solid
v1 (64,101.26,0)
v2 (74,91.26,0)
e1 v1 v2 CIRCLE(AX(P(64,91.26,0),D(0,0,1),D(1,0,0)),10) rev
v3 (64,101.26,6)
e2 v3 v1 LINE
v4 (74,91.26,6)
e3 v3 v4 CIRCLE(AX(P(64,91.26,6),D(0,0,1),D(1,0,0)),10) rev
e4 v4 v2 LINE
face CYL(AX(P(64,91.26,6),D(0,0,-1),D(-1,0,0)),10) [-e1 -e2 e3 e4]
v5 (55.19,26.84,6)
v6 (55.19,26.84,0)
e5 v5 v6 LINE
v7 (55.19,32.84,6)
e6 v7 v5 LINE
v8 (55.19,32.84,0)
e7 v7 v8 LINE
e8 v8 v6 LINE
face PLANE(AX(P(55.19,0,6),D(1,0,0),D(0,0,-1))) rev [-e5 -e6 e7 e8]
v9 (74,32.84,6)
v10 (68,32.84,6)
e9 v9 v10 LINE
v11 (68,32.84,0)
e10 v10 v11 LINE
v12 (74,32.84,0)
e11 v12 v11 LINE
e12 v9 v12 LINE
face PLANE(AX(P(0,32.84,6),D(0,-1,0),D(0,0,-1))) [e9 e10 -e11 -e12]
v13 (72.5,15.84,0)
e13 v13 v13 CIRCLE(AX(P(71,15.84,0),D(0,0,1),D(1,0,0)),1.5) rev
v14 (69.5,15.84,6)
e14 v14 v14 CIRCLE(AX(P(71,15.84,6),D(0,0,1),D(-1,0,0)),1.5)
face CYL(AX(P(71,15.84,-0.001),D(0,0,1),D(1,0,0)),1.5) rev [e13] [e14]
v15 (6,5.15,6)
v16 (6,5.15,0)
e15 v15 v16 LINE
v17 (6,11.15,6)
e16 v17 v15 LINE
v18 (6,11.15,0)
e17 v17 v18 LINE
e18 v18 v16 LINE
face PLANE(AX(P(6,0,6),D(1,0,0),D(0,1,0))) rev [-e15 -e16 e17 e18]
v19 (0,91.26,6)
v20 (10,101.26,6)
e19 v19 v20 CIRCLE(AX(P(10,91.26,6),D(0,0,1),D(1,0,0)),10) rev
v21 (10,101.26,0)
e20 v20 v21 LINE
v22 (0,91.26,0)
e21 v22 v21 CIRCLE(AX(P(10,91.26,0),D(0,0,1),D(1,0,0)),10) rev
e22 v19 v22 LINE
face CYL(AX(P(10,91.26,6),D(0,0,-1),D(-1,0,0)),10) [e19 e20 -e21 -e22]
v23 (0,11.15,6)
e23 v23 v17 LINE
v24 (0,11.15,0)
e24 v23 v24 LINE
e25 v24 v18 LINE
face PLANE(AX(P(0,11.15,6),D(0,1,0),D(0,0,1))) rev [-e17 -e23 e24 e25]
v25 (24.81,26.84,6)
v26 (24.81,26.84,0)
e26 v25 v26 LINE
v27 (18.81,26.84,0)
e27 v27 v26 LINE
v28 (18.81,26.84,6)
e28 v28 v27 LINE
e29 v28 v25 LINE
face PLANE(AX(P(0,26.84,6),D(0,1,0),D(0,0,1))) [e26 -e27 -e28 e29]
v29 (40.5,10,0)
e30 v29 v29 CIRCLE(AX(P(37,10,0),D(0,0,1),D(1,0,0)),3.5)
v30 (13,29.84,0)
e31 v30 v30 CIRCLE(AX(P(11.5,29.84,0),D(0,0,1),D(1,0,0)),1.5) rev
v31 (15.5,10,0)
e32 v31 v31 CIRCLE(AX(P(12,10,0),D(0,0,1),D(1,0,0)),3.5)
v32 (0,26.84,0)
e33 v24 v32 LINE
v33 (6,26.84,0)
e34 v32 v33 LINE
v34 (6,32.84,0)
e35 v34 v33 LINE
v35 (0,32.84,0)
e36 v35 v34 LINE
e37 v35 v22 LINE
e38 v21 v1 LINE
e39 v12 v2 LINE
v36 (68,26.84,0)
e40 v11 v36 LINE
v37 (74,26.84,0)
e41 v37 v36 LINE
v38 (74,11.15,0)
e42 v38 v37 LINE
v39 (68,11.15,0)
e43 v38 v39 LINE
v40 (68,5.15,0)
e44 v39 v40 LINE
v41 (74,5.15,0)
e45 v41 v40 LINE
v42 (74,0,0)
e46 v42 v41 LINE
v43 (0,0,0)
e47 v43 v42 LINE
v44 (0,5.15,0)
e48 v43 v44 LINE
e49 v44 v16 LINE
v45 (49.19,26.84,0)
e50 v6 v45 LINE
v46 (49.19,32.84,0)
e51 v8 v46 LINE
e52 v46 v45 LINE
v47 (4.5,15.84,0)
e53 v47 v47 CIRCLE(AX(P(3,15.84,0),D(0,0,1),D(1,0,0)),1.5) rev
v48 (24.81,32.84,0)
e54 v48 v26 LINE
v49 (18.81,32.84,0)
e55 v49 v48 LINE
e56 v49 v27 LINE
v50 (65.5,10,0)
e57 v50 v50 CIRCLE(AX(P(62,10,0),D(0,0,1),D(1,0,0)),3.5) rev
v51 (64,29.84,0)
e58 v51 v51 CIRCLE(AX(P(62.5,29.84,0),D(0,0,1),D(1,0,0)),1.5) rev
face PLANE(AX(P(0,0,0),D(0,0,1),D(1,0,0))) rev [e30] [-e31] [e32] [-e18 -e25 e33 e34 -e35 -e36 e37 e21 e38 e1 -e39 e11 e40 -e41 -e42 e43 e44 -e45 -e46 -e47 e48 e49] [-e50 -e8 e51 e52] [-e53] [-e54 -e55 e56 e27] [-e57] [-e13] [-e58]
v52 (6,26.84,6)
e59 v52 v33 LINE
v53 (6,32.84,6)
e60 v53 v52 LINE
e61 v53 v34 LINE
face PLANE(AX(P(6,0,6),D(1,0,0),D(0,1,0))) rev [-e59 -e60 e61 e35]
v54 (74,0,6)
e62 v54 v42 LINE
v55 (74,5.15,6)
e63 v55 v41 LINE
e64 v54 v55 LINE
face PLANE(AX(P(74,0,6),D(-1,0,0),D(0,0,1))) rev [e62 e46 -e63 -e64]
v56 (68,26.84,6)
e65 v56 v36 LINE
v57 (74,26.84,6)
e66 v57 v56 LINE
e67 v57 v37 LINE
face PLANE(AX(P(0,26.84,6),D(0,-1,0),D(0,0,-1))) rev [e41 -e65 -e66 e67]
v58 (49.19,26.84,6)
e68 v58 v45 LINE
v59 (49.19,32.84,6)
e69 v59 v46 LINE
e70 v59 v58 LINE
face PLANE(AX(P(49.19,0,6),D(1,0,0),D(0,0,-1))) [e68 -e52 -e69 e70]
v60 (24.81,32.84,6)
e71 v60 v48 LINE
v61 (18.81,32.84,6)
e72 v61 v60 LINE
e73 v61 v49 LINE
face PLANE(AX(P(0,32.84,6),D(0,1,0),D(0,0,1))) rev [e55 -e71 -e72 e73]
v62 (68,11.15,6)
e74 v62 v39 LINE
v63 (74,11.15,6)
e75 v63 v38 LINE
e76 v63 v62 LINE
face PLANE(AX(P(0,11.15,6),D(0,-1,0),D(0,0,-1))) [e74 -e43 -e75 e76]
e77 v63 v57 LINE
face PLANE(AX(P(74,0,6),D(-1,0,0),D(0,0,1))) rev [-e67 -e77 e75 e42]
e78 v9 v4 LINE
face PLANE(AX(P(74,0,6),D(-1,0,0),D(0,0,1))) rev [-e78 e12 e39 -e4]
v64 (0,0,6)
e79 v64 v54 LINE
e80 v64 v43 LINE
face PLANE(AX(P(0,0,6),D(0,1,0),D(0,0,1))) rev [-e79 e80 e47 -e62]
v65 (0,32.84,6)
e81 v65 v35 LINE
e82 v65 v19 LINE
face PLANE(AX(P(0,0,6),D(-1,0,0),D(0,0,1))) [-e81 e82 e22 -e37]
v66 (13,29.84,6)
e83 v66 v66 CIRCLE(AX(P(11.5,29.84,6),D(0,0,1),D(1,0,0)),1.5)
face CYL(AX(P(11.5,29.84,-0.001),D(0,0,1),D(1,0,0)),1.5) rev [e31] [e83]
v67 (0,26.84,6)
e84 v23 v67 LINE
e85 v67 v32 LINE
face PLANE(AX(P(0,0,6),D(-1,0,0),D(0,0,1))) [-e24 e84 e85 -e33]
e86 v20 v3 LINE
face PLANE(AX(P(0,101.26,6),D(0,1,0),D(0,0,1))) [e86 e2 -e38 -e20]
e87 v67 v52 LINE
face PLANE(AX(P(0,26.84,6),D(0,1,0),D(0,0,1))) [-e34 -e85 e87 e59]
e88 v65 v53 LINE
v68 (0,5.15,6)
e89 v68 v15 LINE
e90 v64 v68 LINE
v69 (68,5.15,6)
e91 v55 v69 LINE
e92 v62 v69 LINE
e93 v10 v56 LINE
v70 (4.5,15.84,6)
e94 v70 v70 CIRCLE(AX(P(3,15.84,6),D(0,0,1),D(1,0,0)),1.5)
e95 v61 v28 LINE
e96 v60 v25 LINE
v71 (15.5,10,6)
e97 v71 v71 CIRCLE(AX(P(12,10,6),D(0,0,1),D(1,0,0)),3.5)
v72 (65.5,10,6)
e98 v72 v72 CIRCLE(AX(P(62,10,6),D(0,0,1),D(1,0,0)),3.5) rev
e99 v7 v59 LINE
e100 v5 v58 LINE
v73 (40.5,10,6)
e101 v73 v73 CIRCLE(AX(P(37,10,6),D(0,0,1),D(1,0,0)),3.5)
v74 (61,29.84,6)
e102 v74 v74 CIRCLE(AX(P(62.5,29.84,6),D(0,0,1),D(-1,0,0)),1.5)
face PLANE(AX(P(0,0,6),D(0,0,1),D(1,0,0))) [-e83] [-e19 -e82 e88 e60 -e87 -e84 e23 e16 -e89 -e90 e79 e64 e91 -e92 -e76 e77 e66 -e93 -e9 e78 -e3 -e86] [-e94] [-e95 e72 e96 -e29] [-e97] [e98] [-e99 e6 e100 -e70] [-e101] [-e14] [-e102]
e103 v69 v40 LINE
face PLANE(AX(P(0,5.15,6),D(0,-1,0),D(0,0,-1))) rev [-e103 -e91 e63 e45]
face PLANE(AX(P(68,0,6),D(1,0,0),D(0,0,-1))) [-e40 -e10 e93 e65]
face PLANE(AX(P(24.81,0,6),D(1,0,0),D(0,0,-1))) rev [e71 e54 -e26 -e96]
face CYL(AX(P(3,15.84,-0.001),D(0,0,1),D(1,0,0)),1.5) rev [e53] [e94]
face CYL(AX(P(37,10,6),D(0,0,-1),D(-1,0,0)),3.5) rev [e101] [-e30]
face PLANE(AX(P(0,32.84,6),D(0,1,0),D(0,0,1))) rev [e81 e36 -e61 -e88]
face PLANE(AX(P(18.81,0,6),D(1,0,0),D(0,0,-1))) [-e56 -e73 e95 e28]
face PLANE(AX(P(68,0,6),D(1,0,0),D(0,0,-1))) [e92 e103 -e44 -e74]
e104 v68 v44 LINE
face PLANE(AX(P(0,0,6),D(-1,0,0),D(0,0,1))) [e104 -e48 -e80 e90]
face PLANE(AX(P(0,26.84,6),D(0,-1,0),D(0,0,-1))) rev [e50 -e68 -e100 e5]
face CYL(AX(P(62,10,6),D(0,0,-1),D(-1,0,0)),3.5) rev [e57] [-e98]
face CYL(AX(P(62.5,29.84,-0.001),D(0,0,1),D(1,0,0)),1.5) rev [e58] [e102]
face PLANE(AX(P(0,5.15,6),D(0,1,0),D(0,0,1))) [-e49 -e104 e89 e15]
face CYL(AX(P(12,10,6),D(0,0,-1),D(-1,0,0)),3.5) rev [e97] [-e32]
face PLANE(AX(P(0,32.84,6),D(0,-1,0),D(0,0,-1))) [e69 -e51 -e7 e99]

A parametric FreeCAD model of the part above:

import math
import FreeCAD as App
import Part
import Sketcher
from FreeCAD import Vector

doc = App.newDocument("Part")
params = doc.addObject("Spreadsheet::Sheet", "Params")
for row, (alias, value) in enumerate([
    ("sketch1_diameter", "7 mm"),
    ("sketch1_radius", "10 mm"),
    ("sketch1_width", "74 mm"),
    ("sketch1_width2", "6 mm"),
    ("sketch1_height", "5.15 mm"),
    ("pad1_length", "6 mm"),
    ("sketch2_diameter", "3 mm"),
    ("sketch3_diameter", "3 mm"),
    ("sketch4_diameter", "3 mm"),
    ("sketch5_diameter", "3 mm"),
], start=1):
    params.set(f"A{row}", alias)
    params.set(f"B{row}", "=" + value)
    params.setAlias(f"B{row}", alias)

body = doc.addObject("PartDesign::Body", "Body")

# Sketch on XY plane
sketch1 = doc.addObject("Sketcher::SketchObject", "Sketch")
body.addObject(sketch1)
sketch1.AttachmentSupport = (doc.XY_Plane, [""])
sketch1.MapMode = "FlatFace"
sketch1.addGeometry([
    Part.LineSegment(Vector(0, 5.2, 0), Vector(0, 0, 0)),  # 0
    Part.LineSegment(Vector(0, 0, 0), Vector(74, 0, 0)),  # 1
    Part.LineSegment(Vector(74, 0, 0), Vector(74, 5.2, 0)),  # 2
    Part.LineSegment(Vector(74, 5.2, 0), Vector(68, 5.2, 0)),  # 3
    Part.LineSegment(Vector(68, 5.2, 0), Vector(68, 11.2, 0)),  # 4
    Part.LineSegment(Vector(68, 11.2, 0), Vector(74, 11.2, 0)),  # 5
    Part.LineSegment(Vector(74, 11.2, 0), Vector(74, 26.8, 0)),  # 6
    Part.LineSegment(Vector(74, 26.8, 0), Vector(68, 26.8, 0)),  # 7
    Part.LineSegment(Vector(68, 26.8, 0), Vector(68, 32.8, 0)),  # 8
    Part.LineSegment(Vector(68, 32.8, 0), Vector(74, 32.8, 0)),  # 9
    Part.LineSegment(Vector(74, 32.8, 0), Vector(74, 91.3, 0)),  # 10
    Part.ArcOfCircle(Part.Circle(Vector(64, 91.3, 0), Vector(0, 0, 1), 10), math.radians(0), math.radians(90)),  # 11
    Part.LineSegment(Vector(64, 101.3, 0), Vector(10, 101.3, 0)),  # 12
    Part.ArcOfCircle(Part.Circle(Vector(10, 91.3, 0), Vector(0, 0, 1), 10), math.radians(90), math.radians(180)),  # 13
    Part.LineSegment(Vector(0, 91.3, 0), Vector(0, 32.8, 0)),  # 14
    Part.LineSegment(Vector(0, 32.8, 0), Vector(6, 32.8, 0)),  # 15
    Part.LineSegment(Vector(6, 32.8, 0), Vector(6, 26.8, 0)),  # 16
    Part.LineSegment(Vector(6, 26.8, 0), Vector(0, 26.8, 0)),  # 17
    Part.LineSegment(Vector(0, 26.8, 0), Vector(0, 11.2, 0)),  # 18
    Part.LineSegment(Vector(0, 11.2, 0), Vector(6, 11.2, 0)),  # 19
    Part.LineSegment(Vector(6, 11.2, 0), Vector(6, 5.2, 0)),  # 20
    Part.LineSegment(Vector(6, 5.2, 0), Vector(0, 5.2, 0)),  # 21
    Part.Circle(Vector(12, 10, 0), Vector(0, 0, 1), 3.5),  # 22
    Part.Circle(Vector(37, 10, 0), Vector(0, 0, 1), 3.5),  # 23
    Part.Circle(Vector(62, 10, 0), Vector(0, 0, 1), 3.5),  # 24
    Part.LineSegment(Vector(24.8, 26.8, 0), Vector(18.8, 26.8, 0)),  # 25
    Part.LineSegment(Vector(18.8, 26.8, 0), Vector(18.8, 32.8, 0)),  # 26
    Part.LineSegment(Vector(18.8, 32.8, 0), Vector(24.8, 32.8, 0)),  # 27
    Part.LineSegment(Vector(24.8, 32.8, 0), Vector(24.8, 26.8, 0)),  # 28
    Part.LineSegment(Vector(55.2, 26.8, 0), Vector(49.2, 26.8, 0)),  # 29
    Part.LineSegment(Vector(49.2, 26.8, 0), Vector(49.2, 32.8, 0)),  # 30
    Part.LineSegment(Vector(49.2, 32.8, 0), Vector(55.2, 32.8, 0)),  # 31
    Part.LineSegment(Vector(55.2, 32.8, 0), Vector(55.2, 26.8, 0)),  # 32
], False)
sketch1.addConstraint([
    Sketcher.Constraint("Coincident", 0, 2, 1, 1),
    Sketcher.Constraint("Coincident", 1, 2, 2, 1),
    Sketcher.Constraint("Coincident", 2, 2, 3, 1),
    Sketcher.Constraint("Coincident", 3, 2, 4, 1),
    Sketcher.Constraint("Coincident", 4, 2, 5, 1),
    Sketcher.Constraint("Coincident", 5, 2, 6, 1),
    Sketcher.Constraint("Coincident", 6, 2, 7, 1),
    Sketcher.Constraint("Coincident", 7, 2, 8, 1),
    Sketcher.Constraint("Coincident", 8, 2, 9, 1),
    Sketcher.Constraint("Coincident", 9, 2, 10, 1),
    Sketcher.Constraint("Tangent", 10, 2, 11, 1),
    Sketcher.Constraint("Tangent", 11, 2, 12, 1),
    Sketcher.Constraint("Tangent", 12, 2, 13, 1),
    Sketcher.Constraint("Tangent", 13, 2, 14, 1),
    Sketcher.Constraint("Coincident", 14, 2, 15, 1),
    Sketcher.Constraint("Coincident", 15, 2, 16, 1),
    Sketcher.Constraint("Coincident", 16, 2, 17, 1),
    Sketcher.Constraint("Coincident", 17, 2, 18, 1),
    Sketcher.Constraint("Coincident", 18, 2, 19, 1),
    Sketcher.Constraint("Coincident", 19, 2, 20, 1),
    Sketcher.Constraint("Coincident", 20, 2, 21, 1),
    Sketcher.Constraint("Coincident", 21, 2, 0, 1),
    Sketcher.Constraint("Coincident", 25, 2, 26, 1),
    Sketcher.Constraint("Coincident", 26, 2, 27, 1),
    Sketcher.Constraint("Coincident", 27, 2, 28, 1),
    Sketcher.Constraint("Coincident", 28, 2, 25, 1),
    Sketcher.Constraint("Coincident", 29, 2, 30, 1),
    Sketcher.Constraint("Coincident", 30, 2, 31, 1),
    Sketcher.Constraint("Coincident", 31, 2, 32, 1),
    Sketcher.Constraint("Coincident", 32, 2, 29, 1),
    Sketcher.Constraint("Vertical", 0),
    Sketcher.Constraint("Horizontal", 1),
    Sketcher.Constraint("Vertical", 2),
    Sketcher.Constraint("Horizontal", 3),
    Sketcher.Constraint("Vertical", 4),
    Sketcher.Constraint("Horizontal", 5),
    Sketcher.Constraint("Vertical", 6),
    Sketcher.Constraint("Horizontal", 7),
    Sketcher.Constraint("Vertical", 8),
    Sketcher.Constraint("Horizontal", 9),
    Sketcher.Constraint("Vertical", 10),
    Sketcher.Constraint("Horizontal", 12),
    Sketcher.Constraint("Vertical", 14),
    Sketcher.Constraint("Horizontal", 15),
    Sketcher.Constraint("Vertical", 16),
    Sketcher.Constraint("Horizontal", 17),
    Sketcher.Constraint("Vertical", 18),
    Sketcher.Constraint("Horizontal", 19),
    Sketcher.Constraint("Vertical", 20),
    Sketcher.Constraint("Horizontal", 21),
    Sketcher.Constraint("Horizontal", 25),
    Sketcher.Constraint("Vertical", 26),
    Sketcher.Constraint("Horizontal", 27),
    Sketcher.Constraint("Vertical", 28),
    Sketcher.Constraint("Horizontal", 29),
    Sketcher.Constraint("Vertical", 30),
    Sketcher.Constraint("Horizontal", 31),
    Sketcher.Constraint("Vertical", 32),
    Sketcher.Constraint("Coincident", 0, 2, -1, 1),
    Sketcher.Constraint("Equal", 11, 13),
    Sketcher.Constraint("Equal", 22, 23),
    Sketcher.Constraint("Equal", 23, 24),
    Sketcher.Constraint("PointOnObject", 13, 2, -2),
    Sketcher.Constraint("PointOnObject", 17, 2, -2),
    Sketcher.Constraint("Horizontal", 22, 3, 23, 3),
    Sketcher.Constraint("Horizontal", 23, 3, 24, 3),
    Sketcher.Constraint("Horizontal", 9, 2, 14, 2),
    Sketcher.Constraint("Horizontal", 7, 2, 16, 2),
    Sketcher.Constraint("Horizontal", 5, 2, 18, 2),
    Sketcher.Constraint("Horizontal", 3, 2, 20, 2),
    Sketcher.Constraint("Horizontal", 17, 2, 25, 2),
    Sketcher.Constraint("Horizontal", 15, 2, 26, 2),
    Sketcher.Constraint("Horizontal", 28, 2, 29, 2),
    Sketcher.Constraint("Horizontal", 27, 2, 30, 2),
    Sketcher.Constraint("Vertical", 2, 2, 5, 2),
    Sketcher.Constraint("Vertical", 4, 2, 7, 2),
    Sketcher.Constraint("Vertical", 6, 2, 9, 2),
    Sketcher.Constraint("Vertical", 16, 2, 19, 2),
    Sketcher.Constraint("Equal", 9, 15),
    Sketcher.Constraint("Equal", 21, 25),
    Sketcher.Constraint("Equal", 27, 29),
    Sketcher.Constraint("Equal", 31, 4),
    Sketcher.Constraint("Equal", 4, 8),
    Sketcher.Constraint("Diameter", 22, 7.0),
    Sketcher.Constraint("Radius", 11, 10.0),
    Sketcher.Constraint("DistanceX", 1, 1, 1, 2, 74.0),
    Sketcher.Constraint("DistanceX", 3, 2, 3, 1, 6.0),
    Sketcher.Constraint("DistanceX", -1, 1, 22, 3, 12.0),
    Sketcher.Constraint("DistanceY", -1, 1, 22, 3, 10.0),
    Sketcher.Constraint("DistanceX", -1, 1, 23, 3, 37.0),
    Sketcher.Constraint("DistanceX", -1, 1, 24, 3, 62.0),
    Sketcher.Constraint("DistanceY", 0, 2, 0, 1, 5.15),
    Sketcher.Constraint("DistanceY", 6, 1, 6, 2, 15.69),
    Sketcher.Constraint("DistanceY", 10, 1, 10, 2, 58.42),
    Sketcher.Constraint("DistanceX", -1, 1, 25, 2, 18.81),
    Sketcher.Constraint("DistanceX", -1, 1, 29, 2, 49.19),
])
sketch1.setExpression("Constraints[83]", "Params.sketch1_diameter")
sketch1.setExpression("Constraints[84]", "Params.sketch1_radius")
sketch1.setExpression("Constraints[85]", "Params.sketch1_width")
sketch1.setExpression("Constraints[86]", "Params.sketch1_width2")
sketch1.setExpression("Constraints[91]", "Params.sketch1_height")
pad1 = doc.addObject("PartDesign::Pad", "Pad")
body.addObject(pad1)
pad1.Profile = sketch1
pad1.setExpression("Length", "Params.pad1_length")

# Sketch on XY plane
sketch2 = doc.addObject("Sketcher::SketchObject", "Sketch001")
body.addObject(sketch2)
sketch2.AttachmentSupport = (doc.XY_Plane, [""])
sketch2.MapMode = "FlatFace"
sketch2.AttachmentOffset = App.Placement(Vector(0, 0, 6), App.Rotation())
sketch2.addGeometry(Part.Circle(Vector(3, 15.8, 0), Vector(0, 0, 1), 1.5), False)
sketch2.addConstraint([
    Sketcher.Constraint("Diameter", 0, 3.0),
    Sketcher.Constraint("DistanceX", -1, 1, 0, 3, 3.0),
    Sketcher.Constraint("DistanceY", -1, 1, 0, 3, 15.84),
])
sketch2.setExpression("Constraints[0]", "Params.sketch2_diameter")
pocket1 = doc.addObject("PartDesign::Pocket", "Pocket")
body.addObject(pocket1)
pocket1.Profile = sketch2
pocket1.Type = "UpToFirst"

# Sketch on XY plane
sketch3 = doc.addObject("Sketcher::SketchObject", "Sketch002")
body.addObject(sketch3)
sketch3.AttachmentSupport = (doc.XY_Plane, [""])
sketch3.MapMode = "FlatFace"
sketch3.AttachmentOffset = App.Placement(Vector(0, 0, 6), App.Rotation())
sketch3.addGeometry(Part.Circle(Vector(11.5, 29.8, 0), Vector(0, 0, 1), 1.5), False)
sketch3.addConstraint([
    Sketcher.Constraint("Diameter", 0, 3.0),
    Sketcher.Constraint("DistanceX", -1, 1, 0, 3, 11.5),
    Sketcher.Constraint("DistanceY", -1, 1, 0, 3, 29.84),
])
sketch3.setExpression("Constraints[0]", "Params.sketch3_diameter")
pocket2 = doc.addObject("PartDesign::Pocket", "Pocket001")
body.addObject(pocket2)
pocket2.Profile = sketch3
pocket2.Type = "UpToFirst"

# Sketch on XY plane
sketch4 = doc.addObject("Sketcher::SketchObject", "Sketch003")
body.addObject(sketch4)
sketch4.AttachmentSupport = (doc.XY_Plane, [""])
sketch4.MapMode = "FlatFace"
sketch4.AttachmentOffset = App.Placement(Vector(0, 0, 6), App.Rotation())
sketch4.addGeometry(Part.Circle(Vector(62.5, 29.8, 0), Vector(0, 0, 1), 1.5), False)
sketch4.addConstraint([
    Sketcher.Constraint("Diameter", 0, 3.0),
    Sketcher.Constraint("DistanceX", -1, 1, 0, 3, 62.5),
    Sketcher.Constraint("DistanceY", -1, 1, 0, 3, 29.84),
])
sketch4.setExpression("Constraints[0]", "Params.sketch4_diameter")
pocket3 = doc.addObject("PartDesign::Pocket", "Pocket002")
body.addObject(pocket3)
pocket3.Profile = sketch4
pocket3.Type = "UpToFirst"

# Sketch on XY plane
sketch5 = doc.addObject("Sketcher::SketchObject", "Sketch004")
body.addObject(sketch5)
sketch5.AttachmentSupport = (doc.XY_Plane, [""])
sketch5.MapMode = "FlatFace"
sketch5.AttachmentOffset = App.Placement(Vector(0, 0, 6), App.Rotation())
sketch5.addGeometry(Part.Circle(Vector(71, 15.8, 0), Vector(0, 0, 1), 1.5), False)
sketch5.addConstraint([
    Sketcher.Constraint("Diameter", 0, 3.0),
    Sketcher.Constraint("DistanceX", -1, 1, 0, 3, 71.0),
    Sketcher.Constraint("DistanceY", -1, 1, 0, 3, 15.84),
])
sketch5.setExpression("Constraints[0]", "Params.sketch5_diameter")
pocket4 = doc.addObject("PartDesign::Pocket", "Pocket003")
body.addObject(pocket4)
pocket4.Profile = sketch5
pocket4.Type = "UpToFirst"

doc.recompute()
